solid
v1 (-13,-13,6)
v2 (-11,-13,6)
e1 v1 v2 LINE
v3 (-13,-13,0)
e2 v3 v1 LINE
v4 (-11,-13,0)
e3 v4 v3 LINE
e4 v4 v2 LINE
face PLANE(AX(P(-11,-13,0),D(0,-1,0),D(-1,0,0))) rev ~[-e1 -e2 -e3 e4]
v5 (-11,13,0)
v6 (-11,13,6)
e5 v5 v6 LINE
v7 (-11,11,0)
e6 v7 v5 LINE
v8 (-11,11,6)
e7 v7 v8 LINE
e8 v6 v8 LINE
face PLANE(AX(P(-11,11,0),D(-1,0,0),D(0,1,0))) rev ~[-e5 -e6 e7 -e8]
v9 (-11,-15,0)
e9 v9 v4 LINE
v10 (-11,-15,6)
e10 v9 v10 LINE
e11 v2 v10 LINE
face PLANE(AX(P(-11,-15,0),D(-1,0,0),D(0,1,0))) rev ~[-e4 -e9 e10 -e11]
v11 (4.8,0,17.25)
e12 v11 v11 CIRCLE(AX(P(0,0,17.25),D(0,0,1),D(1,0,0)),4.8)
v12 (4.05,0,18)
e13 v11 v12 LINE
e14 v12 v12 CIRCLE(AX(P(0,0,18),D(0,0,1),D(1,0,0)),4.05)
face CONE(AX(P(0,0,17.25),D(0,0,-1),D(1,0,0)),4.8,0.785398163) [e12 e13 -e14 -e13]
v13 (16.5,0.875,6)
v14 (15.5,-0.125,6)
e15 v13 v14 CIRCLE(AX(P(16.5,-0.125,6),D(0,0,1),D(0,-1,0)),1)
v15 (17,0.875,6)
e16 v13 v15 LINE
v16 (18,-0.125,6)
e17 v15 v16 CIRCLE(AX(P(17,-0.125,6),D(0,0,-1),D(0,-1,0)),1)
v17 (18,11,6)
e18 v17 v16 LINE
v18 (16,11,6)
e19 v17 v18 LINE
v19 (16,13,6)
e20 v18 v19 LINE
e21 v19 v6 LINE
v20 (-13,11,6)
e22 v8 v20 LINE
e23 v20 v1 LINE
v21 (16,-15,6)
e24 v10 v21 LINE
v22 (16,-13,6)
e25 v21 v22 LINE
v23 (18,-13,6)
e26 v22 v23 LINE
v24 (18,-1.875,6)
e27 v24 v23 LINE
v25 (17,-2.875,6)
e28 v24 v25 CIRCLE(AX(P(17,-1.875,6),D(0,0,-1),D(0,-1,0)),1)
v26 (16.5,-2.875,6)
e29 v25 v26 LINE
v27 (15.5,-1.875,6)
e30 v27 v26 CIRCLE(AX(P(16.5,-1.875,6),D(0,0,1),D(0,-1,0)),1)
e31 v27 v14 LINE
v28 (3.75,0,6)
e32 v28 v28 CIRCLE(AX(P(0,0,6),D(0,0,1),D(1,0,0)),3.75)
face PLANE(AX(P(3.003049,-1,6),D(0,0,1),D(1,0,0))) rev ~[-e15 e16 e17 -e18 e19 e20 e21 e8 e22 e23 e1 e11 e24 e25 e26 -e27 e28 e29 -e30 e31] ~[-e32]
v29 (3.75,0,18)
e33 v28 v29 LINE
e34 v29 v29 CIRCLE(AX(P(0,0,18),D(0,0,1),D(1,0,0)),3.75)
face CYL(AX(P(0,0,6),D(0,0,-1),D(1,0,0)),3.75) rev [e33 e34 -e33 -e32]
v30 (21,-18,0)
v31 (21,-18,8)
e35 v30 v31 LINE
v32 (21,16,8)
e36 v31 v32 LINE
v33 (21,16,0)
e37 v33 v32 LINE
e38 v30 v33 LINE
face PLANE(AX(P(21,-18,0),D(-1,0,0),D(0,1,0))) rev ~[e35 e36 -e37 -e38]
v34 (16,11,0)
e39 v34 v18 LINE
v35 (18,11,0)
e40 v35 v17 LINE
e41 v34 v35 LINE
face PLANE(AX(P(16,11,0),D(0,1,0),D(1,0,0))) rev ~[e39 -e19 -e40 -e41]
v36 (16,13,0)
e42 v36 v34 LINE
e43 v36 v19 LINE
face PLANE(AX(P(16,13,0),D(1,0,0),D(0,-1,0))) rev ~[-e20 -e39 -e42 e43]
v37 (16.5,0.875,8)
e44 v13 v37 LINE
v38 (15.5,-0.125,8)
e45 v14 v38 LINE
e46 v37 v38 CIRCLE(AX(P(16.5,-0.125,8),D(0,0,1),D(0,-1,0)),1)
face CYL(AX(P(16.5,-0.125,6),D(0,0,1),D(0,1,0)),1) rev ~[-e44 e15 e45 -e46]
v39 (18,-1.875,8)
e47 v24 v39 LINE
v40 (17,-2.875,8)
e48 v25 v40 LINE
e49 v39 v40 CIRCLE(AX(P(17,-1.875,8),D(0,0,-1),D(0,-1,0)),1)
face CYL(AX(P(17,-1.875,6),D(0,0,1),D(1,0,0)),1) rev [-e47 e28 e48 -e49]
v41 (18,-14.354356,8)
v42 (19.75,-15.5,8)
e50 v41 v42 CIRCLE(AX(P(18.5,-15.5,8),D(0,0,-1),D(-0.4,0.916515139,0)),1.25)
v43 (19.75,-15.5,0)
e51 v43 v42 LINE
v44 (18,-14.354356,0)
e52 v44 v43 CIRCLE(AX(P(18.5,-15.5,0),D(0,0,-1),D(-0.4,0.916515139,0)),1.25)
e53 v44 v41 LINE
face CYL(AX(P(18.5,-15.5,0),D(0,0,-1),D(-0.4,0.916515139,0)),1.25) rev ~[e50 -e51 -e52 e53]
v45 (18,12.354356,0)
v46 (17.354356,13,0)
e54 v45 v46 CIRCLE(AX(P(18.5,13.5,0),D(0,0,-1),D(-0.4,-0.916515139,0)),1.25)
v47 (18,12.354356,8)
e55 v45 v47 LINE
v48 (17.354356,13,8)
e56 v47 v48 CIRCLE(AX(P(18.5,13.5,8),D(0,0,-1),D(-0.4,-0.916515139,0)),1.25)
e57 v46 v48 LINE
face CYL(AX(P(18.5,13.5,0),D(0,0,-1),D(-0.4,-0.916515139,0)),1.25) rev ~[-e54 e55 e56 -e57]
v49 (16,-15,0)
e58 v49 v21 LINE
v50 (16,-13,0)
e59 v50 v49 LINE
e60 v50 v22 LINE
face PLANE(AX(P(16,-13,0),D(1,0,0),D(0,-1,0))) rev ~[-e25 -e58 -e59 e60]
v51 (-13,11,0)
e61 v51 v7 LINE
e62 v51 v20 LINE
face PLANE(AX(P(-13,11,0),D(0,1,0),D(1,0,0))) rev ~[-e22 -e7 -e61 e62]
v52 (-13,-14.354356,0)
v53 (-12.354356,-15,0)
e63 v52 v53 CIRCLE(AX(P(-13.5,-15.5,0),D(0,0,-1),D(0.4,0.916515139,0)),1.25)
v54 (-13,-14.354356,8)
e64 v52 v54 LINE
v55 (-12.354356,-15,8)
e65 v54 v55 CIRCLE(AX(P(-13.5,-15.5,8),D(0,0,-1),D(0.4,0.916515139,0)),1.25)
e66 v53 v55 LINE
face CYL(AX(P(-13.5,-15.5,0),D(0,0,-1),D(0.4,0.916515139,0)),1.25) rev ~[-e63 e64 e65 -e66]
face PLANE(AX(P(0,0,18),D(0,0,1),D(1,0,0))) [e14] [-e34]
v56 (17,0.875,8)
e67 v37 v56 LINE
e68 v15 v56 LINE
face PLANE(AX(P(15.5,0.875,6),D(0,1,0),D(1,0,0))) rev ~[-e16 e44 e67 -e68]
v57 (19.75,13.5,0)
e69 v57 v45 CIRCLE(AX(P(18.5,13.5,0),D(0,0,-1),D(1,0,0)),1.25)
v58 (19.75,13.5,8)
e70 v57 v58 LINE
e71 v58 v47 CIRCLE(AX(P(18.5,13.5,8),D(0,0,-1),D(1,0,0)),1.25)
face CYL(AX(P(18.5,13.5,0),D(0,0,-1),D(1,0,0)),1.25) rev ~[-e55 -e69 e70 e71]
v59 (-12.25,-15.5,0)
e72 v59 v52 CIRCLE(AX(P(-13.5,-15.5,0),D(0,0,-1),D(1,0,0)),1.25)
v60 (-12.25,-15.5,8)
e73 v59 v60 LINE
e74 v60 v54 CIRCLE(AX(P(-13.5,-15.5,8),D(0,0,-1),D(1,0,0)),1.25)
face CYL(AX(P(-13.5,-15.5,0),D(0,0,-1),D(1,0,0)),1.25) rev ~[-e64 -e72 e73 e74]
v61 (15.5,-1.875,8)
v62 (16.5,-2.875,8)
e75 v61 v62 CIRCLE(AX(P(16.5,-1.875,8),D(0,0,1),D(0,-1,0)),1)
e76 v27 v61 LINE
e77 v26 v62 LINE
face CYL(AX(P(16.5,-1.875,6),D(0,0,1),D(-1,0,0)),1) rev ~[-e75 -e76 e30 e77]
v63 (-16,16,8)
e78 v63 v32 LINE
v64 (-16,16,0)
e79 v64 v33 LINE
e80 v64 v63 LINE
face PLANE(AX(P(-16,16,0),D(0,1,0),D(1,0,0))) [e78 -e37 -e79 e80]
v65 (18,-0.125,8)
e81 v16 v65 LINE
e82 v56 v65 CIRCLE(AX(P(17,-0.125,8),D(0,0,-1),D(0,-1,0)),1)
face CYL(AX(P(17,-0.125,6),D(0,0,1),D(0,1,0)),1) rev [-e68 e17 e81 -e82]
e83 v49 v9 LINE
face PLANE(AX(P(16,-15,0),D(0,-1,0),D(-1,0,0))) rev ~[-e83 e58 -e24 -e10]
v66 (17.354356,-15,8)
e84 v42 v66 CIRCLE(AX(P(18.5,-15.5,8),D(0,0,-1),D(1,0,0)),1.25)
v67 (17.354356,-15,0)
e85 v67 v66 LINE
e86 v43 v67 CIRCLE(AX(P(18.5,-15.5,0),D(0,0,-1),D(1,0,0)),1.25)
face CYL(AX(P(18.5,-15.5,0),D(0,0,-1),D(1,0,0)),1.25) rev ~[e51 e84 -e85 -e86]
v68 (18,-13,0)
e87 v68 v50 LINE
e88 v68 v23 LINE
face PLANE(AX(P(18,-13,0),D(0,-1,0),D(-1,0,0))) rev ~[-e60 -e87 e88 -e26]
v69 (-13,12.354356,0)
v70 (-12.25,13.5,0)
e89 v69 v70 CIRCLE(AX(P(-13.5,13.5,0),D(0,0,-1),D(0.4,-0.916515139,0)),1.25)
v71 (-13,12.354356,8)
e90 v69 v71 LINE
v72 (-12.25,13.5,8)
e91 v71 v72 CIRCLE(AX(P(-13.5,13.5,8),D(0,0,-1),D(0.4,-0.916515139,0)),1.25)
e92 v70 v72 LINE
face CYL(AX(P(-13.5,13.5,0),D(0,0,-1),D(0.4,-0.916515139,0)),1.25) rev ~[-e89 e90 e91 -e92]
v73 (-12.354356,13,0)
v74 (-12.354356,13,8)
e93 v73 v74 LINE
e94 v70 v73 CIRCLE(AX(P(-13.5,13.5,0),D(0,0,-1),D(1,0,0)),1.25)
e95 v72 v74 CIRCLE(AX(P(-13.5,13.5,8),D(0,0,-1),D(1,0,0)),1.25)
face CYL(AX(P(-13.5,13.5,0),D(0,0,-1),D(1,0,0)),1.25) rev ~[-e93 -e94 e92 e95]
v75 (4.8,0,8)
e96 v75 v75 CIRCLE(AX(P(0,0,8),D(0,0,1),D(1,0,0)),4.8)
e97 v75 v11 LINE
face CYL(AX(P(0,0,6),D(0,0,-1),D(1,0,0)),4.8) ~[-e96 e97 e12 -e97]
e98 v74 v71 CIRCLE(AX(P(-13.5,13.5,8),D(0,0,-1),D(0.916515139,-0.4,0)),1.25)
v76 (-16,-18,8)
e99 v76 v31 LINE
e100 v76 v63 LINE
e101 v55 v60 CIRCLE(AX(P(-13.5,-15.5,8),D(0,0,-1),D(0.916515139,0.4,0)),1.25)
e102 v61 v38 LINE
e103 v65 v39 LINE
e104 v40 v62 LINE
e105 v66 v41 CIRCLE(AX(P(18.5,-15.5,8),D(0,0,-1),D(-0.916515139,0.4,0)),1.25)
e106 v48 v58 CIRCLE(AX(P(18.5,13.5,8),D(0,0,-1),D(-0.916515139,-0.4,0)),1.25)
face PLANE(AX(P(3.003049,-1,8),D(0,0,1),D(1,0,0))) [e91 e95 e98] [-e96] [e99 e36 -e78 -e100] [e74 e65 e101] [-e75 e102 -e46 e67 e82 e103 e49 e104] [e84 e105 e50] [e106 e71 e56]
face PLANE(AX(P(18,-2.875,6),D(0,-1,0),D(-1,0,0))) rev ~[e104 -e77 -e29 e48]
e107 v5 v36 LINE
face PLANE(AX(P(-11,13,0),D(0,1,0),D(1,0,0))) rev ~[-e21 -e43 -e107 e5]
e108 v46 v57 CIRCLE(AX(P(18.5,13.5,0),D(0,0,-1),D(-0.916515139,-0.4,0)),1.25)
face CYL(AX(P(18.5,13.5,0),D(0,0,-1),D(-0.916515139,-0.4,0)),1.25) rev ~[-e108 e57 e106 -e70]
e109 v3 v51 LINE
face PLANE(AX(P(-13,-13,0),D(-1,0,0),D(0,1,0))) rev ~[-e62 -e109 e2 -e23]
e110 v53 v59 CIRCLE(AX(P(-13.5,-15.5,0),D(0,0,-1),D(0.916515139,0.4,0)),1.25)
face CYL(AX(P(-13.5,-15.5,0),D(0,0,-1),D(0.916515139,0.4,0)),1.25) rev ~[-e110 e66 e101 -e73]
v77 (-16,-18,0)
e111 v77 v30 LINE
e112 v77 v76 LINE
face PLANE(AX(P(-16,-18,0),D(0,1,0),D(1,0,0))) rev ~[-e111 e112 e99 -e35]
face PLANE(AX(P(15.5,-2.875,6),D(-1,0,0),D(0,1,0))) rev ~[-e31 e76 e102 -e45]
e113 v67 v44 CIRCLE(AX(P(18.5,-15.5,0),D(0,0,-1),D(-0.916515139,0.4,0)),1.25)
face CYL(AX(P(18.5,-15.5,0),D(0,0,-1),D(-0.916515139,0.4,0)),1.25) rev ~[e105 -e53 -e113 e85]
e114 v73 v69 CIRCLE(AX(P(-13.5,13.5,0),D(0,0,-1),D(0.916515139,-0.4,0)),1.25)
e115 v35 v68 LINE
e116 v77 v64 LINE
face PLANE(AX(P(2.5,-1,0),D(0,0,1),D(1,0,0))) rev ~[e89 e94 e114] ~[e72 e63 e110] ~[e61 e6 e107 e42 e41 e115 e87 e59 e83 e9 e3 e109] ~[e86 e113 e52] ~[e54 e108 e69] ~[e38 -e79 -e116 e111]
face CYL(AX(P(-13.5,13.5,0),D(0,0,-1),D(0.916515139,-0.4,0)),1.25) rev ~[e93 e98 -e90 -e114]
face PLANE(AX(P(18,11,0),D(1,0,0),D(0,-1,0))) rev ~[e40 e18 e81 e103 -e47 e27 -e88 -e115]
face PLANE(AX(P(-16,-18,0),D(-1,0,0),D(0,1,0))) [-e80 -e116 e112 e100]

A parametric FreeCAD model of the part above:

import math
import FreeCAD as App
import Part
import Sketcher

V = App.Vector


def edges_at(feature, points):
    """Names of the edges that pass closest to the given points."""
    edges = feature.Shape.Edges
    near = lambda p: min(range(len(edges)), key=lambda i: edges[i].distToShape(Part.Vertex(*p))[0])
    return sorted({f"Edge{near(p) + 1}" for p in points})

doc = App.newDocument("Part")
body = doc.addObject("PartDesign::Body", "Body")

# Sketch on XY plane
sketch1 = body.newObject("Sketcher::SketchObject", "Sketch")
sketch1.AttachmentSupport = (doc.getObject("XY_Plane"), [""])
sketch1.MapMode = "FlatFace"
sketch1.addGeometry([
    Part.LineSegment(V(-16, 16, 0), V(-16, -18, 0)),  # 0
    Part.LineSegment(V(-16, -18, 0), V(21, -18, 0)),  # 1
    Part.LineSegment(V(21, -18, 0), V(21, 16, 0)),  # 2
    Part.LineSegment(V(21, 16, 0), V(-16, 16, 0)),  # 3
    Part.ArcOfCircle(Part.Circle(V(-13.5, 13.5, 0), V(0, 0, 1), 1.2), math.radians(-24), math.radians(0)),  # 4
    Part.ArcOfCircle(Part.Circle(V(-13.5, 13.5, 0), V(0, 0, 1), 1.2), math.radians(-66), math.radians(-24)),  # 5
    Part.ArcOfCircle(Part.Circle(V(-13.5, 13.5, 0), V(0, 0, 1), 1.2), math.radians(0), math.radians(294)),  # 6
    Part.LineSegment(V(-11, 13, 0), V(16, 13, 0)),  # 7
    Part.LineSegment(V(16, 13, 0), V(16, 11, 0)),  # 8
    Part.LineSegment(V(16, 11, 0), V(18, 11, 0)),  # 9
    Part.LineSegment(V(18, 11, 0), V(18, -13, 0)),  # 10
    Part.LineSegment(V(18, -13, 0), V(16, -13, 0)),  # 11
    Part.LineSegment(V(16, -13, 0), V(16, -15, 0)),  # 12
    Part.LineSegment(V(16, -15, 0), V(-11, -15, 0)),  # 13
    Part.LineSegment(V(-11, -15, 0), V(-11, -13, 0)),  # 14
    Part.LineSegment(V(-11, -13, 0), V(-13, -13, 0)),  # 15
    Part.LineSegment(V(-13, -13, 0), V(-13, 11, 0)),  # 16
    Part.LineSegment(V(-13, 11, 0), V(-11, 11, 0)),  # 17
    Part.LineSegment(V(-11, 11, 0), V(-11, 13, 0)),  # 18
    Part.ArcOfCircle(Part.Circle(V(18.5, 13.5, 0), V(0, 0, 1), 1.2), math.radians(0), math.radians(204)),  # 19
    Part.ArcOfCircle(Part.Circle(V(18.5, 13.5, 0), V(0, 0, 1), 1.2), math.radians(-114), math.radians(0)),  # 20
    Part.ArcOfCircle(Part.Circle(V(18.5, 13.5, 0), V(0, 0, 1), 1.2), math.radians(-156), math.radians(-114)),  # 21
    Part.ArcOfCircle(Part.Circle(V(18.5, -15.5, 0), V(0, 0, 1), 1.2), math.radians(0), math.radians(114)),  # 22
    Part.ArcOfCircle(Part.Circle(V(18.5, -15.5, 0), V(0, 0, 1), 1.2), math.radians(156), math.radians(360)),  # 23
    Part.ArcOfCircle(Part.Circle(V(18.5, -15.5, 0), V(0, 0, 1), 1.2), math.radians(114), math.radians(156)),  # 24
    Part.ArcOfCircle(Part.Circle(V(-13.5, -15.5, 0), V(0, 0, 1), 1.2), math.radians(66), math.radians(360)),  # 25
    Part.ArcOfCircle(Part.Circle(V(-13.5, -15.5, 0), V(0, 0, 1), 1.2), math.radians(24), math.radians(66)),  # 26
    Part.ArcOfCircle(Part.Circle(V(-13.5, -15.5, 0), V(0, 0, 1), 1.2), math.radians(0), math.radians(24)),  # 27
], False)
sketch1.addConstraint([
    Sketcher.Constraint("Coincident", 0, 2, 1, 1),
    Sketcher.Constraint("Coincident", 1, 2, 2, 1),
    Sketcher.Constraint("Coincident", 2, 2, 3, 1),
    Sketcher.Constraint("Coincident", 3, 2, 0, 1),
    Sketcher.Constraint("Tangent", 4, 1, 5, 2),
    Sketcher.Constraint("Tangent", 5, 1, 6, 2),
    Sketcher.Constraint("Tangent", 6, 1, 4, 2),
    Sketcher.Constraint("Coincident", 7, 2, 8, 1),
    Sketcher.Constraint("Coincident", 8, 2, 9, 1),
    Sketcher.Constraint("Coincident", 9, 2, 10, 1),
    Sketcher.Constraint("Coincident", 10, 2, 11, 1),
    Sketcher.Constraint("Coincident", 11, 2, 12, 1),
    Sketcher.Constraint("Coincident", 12, 2, 13, 1),
    Sketcher.Constraint("Coincident", 13, 2, 14, 1),
    Sketcher.Constraint("Coincident", 14, 2, 15, 1),
    Sketcher.Constraint("Coincident", 15, 2, 16, 1),
    Sketcher.Constraint("Coincident", 16, 2, 17, 1),
    Sketcher.Constraint("Coincident", 17, 2, 18, 1),
    Sketcher.Constraint("Coincident", 18, 2, 7, 1),
    Sketcher.Constraint("Tangent", 19, 1, 20, 2),
    Sketcher.Constraint("Tangent", 20, 1, 21, 2),
    Sketcher.Constraint("Tangent", 21, 1, 19, 2),
    Sketcher.Constraint("Tangent", 22, 1, 23, 2),
    Sketcher.Constraint("Tangent", 23, 1, 24, 2),
    Sketcher.Constraint("Tangent", 24, 1, 22, 2),
    Sketcher.Constraint("Tangent", 25, 1, 26, 2),
    Sketcher.Constraint("Tangent", 26, 1, 27, 2),
    Sketcher.Constraint("Tangent", 27, 1, 25, 2),
    Sketcher.Constraint("Vertical", 0),
    Sketcher.Constraint("Horizontal", 1),
    Sketcher.Constraint("Vertical", 2),
    Sketcher.Constraint("Horizontal", 3),
    Sketcher.Constraint("Horizontal", 7),
    Sketcher.Constraint("Vertical", 8),
    Sketcher.Constraint("Horizontal", 9),
    Sketcher.Constraint("Vertical", 10),
    Sketcher.Constraint("Horizontal", 11),
    Sketcher.Constraint("Vertical", 12),
    Sketcher.Constraint("Horizontal", 13),
    Sketcher.Constraint("Vertical", 14),
    Sketcher.Constraint("Horizontal", 15),
    Sketcher.Constraint("Vertical", 16),
    Sketcher.Constraint("Horizontal", 17),
    Sketcher.Constraint("Vertical", 18),
    Sketcher.Constraint("Equal", 6, 19),
    Sketcher.Constraint("Equal", 21, 22),
    Sketcher.Constraint("Equal", 24, 25),
    Sketcher.Constraint("Symmetric", 7, 2, 11, 2, -1),
    Sketcher.Constraint("Symmetric", 14, 2, 18, 2, -1),
    Sketcher.Constraint("Horizontal", 6, 3, 19, 3),
    Sketcher.Constraint("Horizontal", 24, 3, 25, 3),
    Sketcher.Constraint("Horizontal", 21, 3, 6, 1),
    Sketcher.Constraint("Horizontal", 4, 1, 7, 2),
    Sketcher.Constraint("Horizontal", 9, 2, 16, 2),
    Sketcher.Constraint("Horizontal", 6, 1, 19, 1),
    Sketcher.Constraint("Horizontal", 5, 1, 20, 1),
    Sketcher.Constraint("Horizontal", 18, 2, 21, 1),
    Sketcher.Constraint("Horizontal", 27, 3, 22, 1),
    Sketcher.Constraint("Horizontal", 13, 2, 23, 1),
    Sketcher.Constraint("Horizontal", 24, 1, 25, 1),
    Sketcher.Constraint("Horizontal", 23, 1, 26, 1),
    Sketcher.Constraint("Horizontal", 22, 1, 27, 1),
    Sketcher.Constraint("Vertical", 21, 3, 22, 3),
    Sketcher.Constraint("Vertical", 6, 3, 25, 3),
    Sketcher.Constraint("Vertical", 5, 1, 15, 2),
    Sketcher.Constraint("Vertical", 10, 2, 20, 1),
    Sketcher.Constraint("Vertical", 21, 1, 23, 1),
    Sketcher.Constraint("Vertical", 20, 1, 24, 1),
    Sketcher.Constraint("Equal", 11, 15),
    Sketcher.Constraint("Equal", 17, 8),
    Sketcher.Constraint("Equal", 8, 12),
    Sketcher.Constraint("DistanceX", 1, 1, 1, 2, 37.0),
    Sketcher.Constraint("DistanceX", 7, 1, 7, 2, 27.0),
    Sketcher.Constraint("DistanceX", 9, 1, 9, 2, 2.0),
    Sketcher.Constraint("DistanceY", 0, 2, 0, 1, 34.0),
    Sketcher.Constraint("DistanceY", 10, 2, 10, 1, 24.0),
    Sketcher.Constraint("Radius", 4, 1.25),
    Sketcher.Constraint("DistanceX", 0, 2, -1, 1, 16.0),
    Sketcher.Constraint("DistanceY", 0, 2, -1, 1, 18.0),
    Sketcher.Constraint("DistanceX", 5, 1, -1, 1, 13.0),
    Sketcher.Constraint("DistanceX", 4, 3, 19, 3, 32.0),
    Sketcher.Constraint("DistanceY", 22, 3, 21, 3, 29.0),
])
pad1 = body.newObject("PartDesign::Pad", "Pad")
pad1.Profile = sketch1
pad1.Length = 8

# Sketch on XY plane
sketch2 = body.newObject("Sketcher::SketchObject", "Sketch001")
sketch2.AttachmentSupport = (doc.getObject("XY_Plane"), [""])
sketch2.MapMode = "FlatFace"
sketch2.AttachmentOffset = App.Placement(V(0, 0, 6), App.Rotation())
sketch2.addGeometry([
    Part.LineSegment(V(16, 13, 0), V(-11, 13, 0)),  # 0
    Part.LineSegment(V(-11, 13, 0), V(-11, 11, 0)),  # 1
    Part.LineSegment(V(-11, 11, 0), V(-13, 11, 0)),  # 2
    Part.LineSegment(V(-13, 11, 0), V(-13, -13, 0)),  # 3
    Part.LineSegment(V(-13, -13, 0), V(-11, -13, 0)),  # 4
    Part.LineSegment(V(-11, -13, 0), V(-11, -15, 0)),  # 5
    Part.LineSegment(V(-11, -15, 0), V(16, -15, 0)),  # 6
    Part.LineSegment(V(16, -15, 0), V(16, -13, 0)),  # 7
    Part.LineSegment(V(16, -13, 0), V(18, -13, 0)),  # 8
    Part.LineSegment(V(18, -13, 0), V(18, -2.9, 0)),  # 9
    Part.LineSegment(V(18, -2.9, 0), V(15.5, -2.9, 0)),  # 10
    Part.LineSegment(V(15.5, -2.9, 0), V(15.5, 0.9, 0)),  # 11
    Part.LineSegment(V(15.5, 0.9, 0), V(18, 0.9, 0)),  # 12
    Part.LineSegment(V(18, 0.9, 0), V(18, 11, 0)),  # 13
    Part.LineSegment(V(18, 11, 0), V(16, 11, 0)),  # 14
    Part.LineSegment(V(16, 11, 0), V(16, 13, 0)),  # 15
    Part.Circle(V(0, 0, 0), V(0, 0, 1), 4.8),  # 16
], False)
sketch2.addConstraint([
    Sketcher.Constraint("Coincident", 0, 2, 1, 1),
    Sketcher.Constraint("Coincident", 1, 2, 2, 1),
    Sketcher.Constraint("Coincident", 2, 2, 3, 1),
    Sketcher.Constraint("Coincident", 3, 2, 4, 1),
    Sketcher.Constraint("Coincident", 4, 2, 5, 1),
    Sketcher.Constraint("Coincident", 5, 2, 6, 1),
    Sketcher.Constraint("Coincident", 6, 2, 7, 1),
    Sketcher.Constraint("Coincident", 7, 2, 8, 1),
    Sketcher.Constraint("Coincident", 8, 2, 9, 1),
    Sketcher.Constraint("Coincident", 9, 2, 10, 1),
    Sketcher.Constraint("Coincident", 10, 2, 11, 1),
    Sketcher.Constraint("Coincident", 11, 2, 12, 1),
    Sketcher.Constraint("Coincident", 12, 2, 13, 1),
    Sketcher.Constraint("Coincident", 13, 2, 14, 1),
    Sketcher.Constraint("Coincident", 14, 2, 15, 1),
    Sketcher.Constraint("Coincident", 15, 2, 0, 1),
    Sketcher.Constraint("Horizontal", 0),
    Sketcher.Constraint("Vertical", 1),
    Sketcher.Constraint("Horizontal", 2),
    Sketcher.Constraint("Vertical", 3),
    Sketcher.Constraint("Horizontal", 4),
    Sketcher.Constraint("Vertical", 5),
    Sketcher.Constraint("Horizontal", 6),
    Sketcher.Constraint("Vertical", 7),
    Sketcher.Constraint("Horizontal", 8),
    Sketcher.Constraint("Vertical", 9),
    Sketcher.Constraint("Horizontal", 10),
    Sketcher.Constraint("Vertical", 11),
    Sketcher.Constraint("Horizontal", 12),
    Sketcher.Constraint("Vertical", 13),
    Sketcher.Constraint("Horizontal", 14),
    Sketcher.Constraint("Vertical", 15),
    Sketcher.Constraint("Coincident", 16, 3, -1, 1),
    Sketcher.Constraint("Symmetric", 0, 2, 4, 2, -1),
    Sketcher.Constraint("Symmetric", 7, 2, 15, 2, -1),
    Sketcher.Constraint("Horizontal", 2, 2, 13, 2),
    Sketcher.Constraint("Vertical", 9, 2, 12, 2),
    Sketcher.Constraint("Equal", 4, 8),
    Sketcher.Constraint("Equal", 14, 1),
    Sketcher.Constraint("Equal", 1, 5),
    Sketcher.Constraint("Equal", 9, 13),
    Sketcher.Constraint("Diameter", 16, 9.6),
    Sketcher.Constraint("DistanceX", 0, 2, 0, 1, 27.0),
    Sketcher.Constraint("DistanceX", 2, 2, 2, 1, 2.0),
    Sketcher.Constraint("DistanceY", 3, 2, 3, 1, 24.0),
    Sketcher.Constraint("DistanceX", 10, 2, 10, 1, 2.5),
    Sketcher.Constraint("DistanceX", 0, 2, -1, 1, 11.0),
    Sketcher.Constraint("DistanceY", 11, 1, 11, 2, 3.75),
])
pad2 = body.newObject("PartDesign::Pad", "Pad001")
pad2.Profile = sketch2
pad2.Length = 2
doc.recompute()

fillet = body.newObject("PartDesign::Fillet", "Fillet")
fillet.Base = (pad2, edges_at(pad2, [
    (15.5, 0.875, 7),
    (18, 0.875, 7),
    (15.5, -2.875, 7),
    (18, -2.875, 7),
]))
fillet.Radius = 1

# Sketch on XY plane
sketch3 = body.newObject("Sketcher::SketchObject", "Sketch002")
sketch3.AttachmentSupport = (doc.getObject("XY_Plane"), [""])
sketch3.MapMode = "FlatFace"
sketch3.AttachmentOffset = App.Placement(V(0, 0, 6), App.Rotation())
sketch3.addGeometry([
    Part.Circle(V(0, 0, 0), V(0, 0, 1), 4.8),
    Part.Circle(V(0, 0, 0), V(0, 0, 1), 3.8),
], False)
sketch3.addConstraint([
    Sketcher.Constraint("Coincident", 0, 3, -1, 1),
    Sketcher.Constraint("Coincident", 1, 3, -1, 1),
    Sketcher.Constraint("Diameter", 0, 9.6),
    Sketcher.Constraint("Diameter", 1, 7.5),
])
pad3 = body.newObject("PartDesign::Pad", "Pad002")
pad3.Profile = sketch3
pad3.Length = 12
doc.recompute()

chamfer = body.newObject("PartDesign::Chamfer", "Chamfer")
chamfer.Base = (pad3, edges_at(pad3, [(-4.8, 0, 18)]))
chamfer.Size = 0.75

doc.recompute()
